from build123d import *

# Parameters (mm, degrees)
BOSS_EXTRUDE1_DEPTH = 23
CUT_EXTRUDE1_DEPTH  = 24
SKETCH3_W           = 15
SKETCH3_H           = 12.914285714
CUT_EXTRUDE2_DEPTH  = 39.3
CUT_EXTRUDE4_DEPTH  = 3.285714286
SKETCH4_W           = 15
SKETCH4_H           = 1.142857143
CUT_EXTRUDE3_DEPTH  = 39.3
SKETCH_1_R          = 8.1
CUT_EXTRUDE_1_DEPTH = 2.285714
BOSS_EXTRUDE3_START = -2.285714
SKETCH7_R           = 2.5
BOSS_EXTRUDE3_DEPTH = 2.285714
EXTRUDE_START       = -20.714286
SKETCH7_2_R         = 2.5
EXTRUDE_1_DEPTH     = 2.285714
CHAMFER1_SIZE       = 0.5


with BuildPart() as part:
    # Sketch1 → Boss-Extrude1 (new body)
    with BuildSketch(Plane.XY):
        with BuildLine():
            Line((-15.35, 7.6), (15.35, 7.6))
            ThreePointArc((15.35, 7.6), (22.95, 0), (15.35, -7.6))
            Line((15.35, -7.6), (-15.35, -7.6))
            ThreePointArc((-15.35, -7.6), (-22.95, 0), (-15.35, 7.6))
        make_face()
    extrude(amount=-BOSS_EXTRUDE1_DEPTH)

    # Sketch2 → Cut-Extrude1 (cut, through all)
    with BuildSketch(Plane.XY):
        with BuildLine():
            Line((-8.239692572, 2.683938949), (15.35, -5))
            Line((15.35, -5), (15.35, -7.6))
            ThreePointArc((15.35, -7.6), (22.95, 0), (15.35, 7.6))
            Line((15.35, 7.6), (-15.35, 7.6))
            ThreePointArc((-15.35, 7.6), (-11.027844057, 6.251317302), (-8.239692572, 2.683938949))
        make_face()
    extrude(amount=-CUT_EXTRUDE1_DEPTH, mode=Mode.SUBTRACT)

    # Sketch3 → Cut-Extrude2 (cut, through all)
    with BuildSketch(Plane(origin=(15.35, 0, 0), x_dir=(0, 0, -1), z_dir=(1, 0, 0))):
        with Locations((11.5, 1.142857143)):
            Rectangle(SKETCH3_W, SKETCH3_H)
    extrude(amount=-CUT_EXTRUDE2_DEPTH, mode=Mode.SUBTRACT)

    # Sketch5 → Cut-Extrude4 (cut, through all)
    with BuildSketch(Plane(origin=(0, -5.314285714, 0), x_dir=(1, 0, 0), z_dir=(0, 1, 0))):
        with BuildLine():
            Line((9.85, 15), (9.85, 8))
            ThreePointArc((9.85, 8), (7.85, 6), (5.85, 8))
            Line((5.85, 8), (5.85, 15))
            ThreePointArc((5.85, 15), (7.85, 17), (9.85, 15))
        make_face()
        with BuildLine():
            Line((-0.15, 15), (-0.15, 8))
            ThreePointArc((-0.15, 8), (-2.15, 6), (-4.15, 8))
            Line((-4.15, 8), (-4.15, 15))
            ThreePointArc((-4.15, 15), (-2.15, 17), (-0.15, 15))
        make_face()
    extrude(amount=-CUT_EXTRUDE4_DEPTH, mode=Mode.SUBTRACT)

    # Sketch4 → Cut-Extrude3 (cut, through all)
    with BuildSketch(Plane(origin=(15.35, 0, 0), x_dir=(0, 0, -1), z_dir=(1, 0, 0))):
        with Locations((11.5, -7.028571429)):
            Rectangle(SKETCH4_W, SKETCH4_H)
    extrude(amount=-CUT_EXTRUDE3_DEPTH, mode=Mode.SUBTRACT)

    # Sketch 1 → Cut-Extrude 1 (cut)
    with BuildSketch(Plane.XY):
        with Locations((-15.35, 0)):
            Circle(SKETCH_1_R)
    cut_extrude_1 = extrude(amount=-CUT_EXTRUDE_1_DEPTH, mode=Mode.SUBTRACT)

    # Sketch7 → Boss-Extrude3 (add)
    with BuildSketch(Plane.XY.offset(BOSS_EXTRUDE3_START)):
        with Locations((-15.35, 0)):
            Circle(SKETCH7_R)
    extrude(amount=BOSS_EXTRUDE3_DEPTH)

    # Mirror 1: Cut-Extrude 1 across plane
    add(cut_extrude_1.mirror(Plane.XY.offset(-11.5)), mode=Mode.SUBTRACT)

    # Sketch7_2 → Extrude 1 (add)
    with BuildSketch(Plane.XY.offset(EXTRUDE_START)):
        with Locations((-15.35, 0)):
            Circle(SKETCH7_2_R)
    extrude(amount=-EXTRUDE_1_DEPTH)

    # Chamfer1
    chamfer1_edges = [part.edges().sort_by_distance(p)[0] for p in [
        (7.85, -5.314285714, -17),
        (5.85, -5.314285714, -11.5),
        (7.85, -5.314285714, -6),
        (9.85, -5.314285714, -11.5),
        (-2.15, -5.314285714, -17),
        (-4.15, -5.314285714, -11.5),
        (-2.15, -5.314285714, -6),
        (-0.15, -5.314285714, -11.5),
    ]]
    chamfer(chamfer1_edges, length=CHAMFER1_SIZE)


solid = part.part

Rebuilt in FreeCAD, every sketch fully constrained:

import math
import FreeCAD as App
import Part
import Sketcher


def edges_at(feature, points):
    """Names of the edges that pass closest to the given points."""
    edges = feature.Shape.Edges
    near = lambda p: min(range(len(edges)), key=lambda i: edges[i].distToShape(Part.Vertex(*p))[0])
    return sorted({f"Edge{near(p) + 1}" for p in points})


def add_polygon(sketch, points):
    """Adds a closed chain of lines whose ends are joined by coincident constraints."""
    first, n = sketch.GeometryCount, len(points)
    for a, b in zip(points, points[1:] + points[:1]):
        sketch.addGeometry(Part.LineSegment(App.Vector(*a, 0), App.Vector(*b, 0)), False)
    for i in range(n):
        sketch.addConstraint(Sketcher.Constraint("Coincident", first + i, 2, first + (i + 1) % n, 1))

doc = App.newDocument("Part")
body = doc.addObject("PartDesign::Body", "Body")

# Sketch on XY plane
sketch1 = body.newObject("Sketcher::SketchObject", "Sketch")
sketch1.AttachmentSupport = (doc.getObject("XY_Plane"), [""])
sketch1.MapMode = "FlatFace"
sketch1.addGeometry(Part.LineSegment(App.Vector(15, 8, 0), App.Vector(-15, 8, 0)), False)
sketch1.addGeometry(Part.ArcOfCircle(Part.Circle(App.Vector(-15, 0, 0), App.Vector(0, 0, 1), 8), math.radians(90), math.radians(270)), False)
sketch1.addGeometry(Part.LineSegment(App.Vector(-15, -8, 0), App.Vector(15, -8, 0)), False)
sketch1.addGeometry(Part.ArcOfCircle(Part.Circle(App.Vector(15, 0, 0), App.Vector(0, 0, 1), 8), math.radians(-90), math.radians(90)), False)
sketch1.addConstraint(Sketcher.Constraint("Tangent", 0, 2, 1, 1))
sketch1.addConstraint(Sketcher.Constraint("Tangent", 1, 2, 2, 1))
sketch1.addConstraint(Sketcher.Constraint("Tangent", 2, 2, 3, 1))
sketch1.addConstraint(Sketcher.Constraint("Tangent", 3, 2, 0, 1))
sketch1.addConstraint(Sketcher.Constraint("Horizontal", 0))
sketch1.addConstraint(Sketcher.Constraint("Horizontal", 2))
sketch1.addConstraint(Sketcher.Constraint("Symmetric", 1, 3, 3, 3, -1, 1))
sketch1.addConstraint(Sketcher.Constraint("Radius", 1, 7.6))
sketch1.addConstraint(Sketcher.Constraint("DistanceX", 0, 2, 0, 1, 30.7))
pad1 = body.newObject("PartDesign::Pad", "Pad")
pad1.Profile = sketch1
pad1.Length = 23
pad1.Reversed = True

# Sketch on XY plane
sketch2 = body.newObject("Sketcher::SketchObject", "Sketch001")
sketch2.AttachmentSupport = (doc.getObject("XY_Plane"), [""])
sketch2.MapMode = "FlatFace"
sketch2.addGeometry(Part.LineSegment(App.Vector(-8.2, 2.7, 0), App.Vector(15.3, -5, 0)), False)
sketch2.addGeometry(Part.LineSegment(App.Vector(15.3, -5, 0), App.Vector(15.3, -7.6, 0)), False)
sketch2.addGeometry(Part.ArcOfCircle(Part.Circle(App.Vector(15.3, 0, 0), App.Vector(0, 0, 1), 7.6), math.radians(-90), math.radians(90)), False)
sketch2.addGeometry(Part.LineSegment(App.Vector(15.3, 7.6, 0), App.Vector(-15.3, 7.6, 0)), False)
sketch2.addGeometry(Part.ArcOfCircle(Part.Circle(App.Vector(-15.3, 0, 0), App.Vector(0, 0, 1), 7.6), math.radians(21), math.radians(90)), False)
sketch2.addConstraint(Sketcher.Constraint("Coincident", 0, 2, 1, 1))
sketch2.addConstraint(Sketcher.Constraint("Coincident", 1, 2, 2, 1))
sketch2.addConstraint(Sketcher.Constraint("Tangent", 2, 2, 3, 1))
sketch2.addConstraint(Sketcher.Constraint("Tangent", 3, 2, 4, 2))
sketch2.addConstraint(Sketcher.Constraint("Coincident", 4, 1, 0, 1))
sketch2.addConstraint(Sketcher.Constraint("Vertical", 1))
sketch2.addConstraint(Sketcher.Constraint("Horizontal", 3))
sketch2.addConstraint(Sketcher.Constraint("Equal", 2, 4))
sketch2.addConstraint(Sketcher.Constraint("Symmetric", 2, 3, 4, 3, -1, 1))
sketch2.addConstraint(Sketcher.Constraint("Vertical", 2, 3, 0, 2))
sketch2.addConstraint(Sketcher.Constraint("Radius", 2, 7.6))
sketch2.addConstraint(Sketcher.Constraint("DistanceX", 3, 2, 3, 1, 30.7))
sketch2.addConstraint(Sketcher.Constraint("DistanceY", 1, 2, 1, 1, 2.6))
sketch2.addConstraint(Sketcher.Constraint("DistanceY", -1, 1, 4, 1, 2.683939))
pocket1 = body.newObject("PartDesign::Pocket", "Pocket")
pocket1.Profile = sketch2
pocket1.Type = "ThroughAll"

# Sketch on YZ plane
sketch3 = body.newObject("Sketcher::SketchObject", "Sketch002")
sketch3.AttachmentSupport = (doc.getObject("YZ_Plane"), [""])
sketch3.MapMode = "FlatFace"
sketch3.AttachmentOffset = App.Placement(App.Vector(0, 0, 15.35), App.Rotation())
add_polygon(sketch3, [(8, -4), (-5, -4), (-5, -19), (8, -19)])  # lines 0-3
sketch3.addConstraint(Sketcher.Constraint("Horizontal", 0))
sketch3.addConstraint(Sketcher.Constraint("Vertical", 1))
sketch3.addConstraint(Sketcher.Constraint("Horizontal", 2))
sketch3.addConstraint(Sketcher.Constraint("Vertical", 3))
sketch3.addConstraint(Sketcher.Constraint("DistanceY", 1, 2, 1, 1, 15.0))
sketch3.addConstraint(Sketcher.Constraint("DistanceY", 0, 2, -1, 1, 4.0))
sketch3.addConstraint(Sketcher.Constraint("DistanceX", -1, 1, 2, 2, 7.6))
sketch3.addConstraint(Sketcher.Constraint("DistanceX", 0, 2, 0, 1, 12.914286))
pocket2 = body.newObject("PartDesign::Pocket", "Pocket001")
pocket2.Profile = sketch3
pocket2.Type = "ThroughAll"

# Sketch on XZ plane
sketch4 = body.newObject("Sketcher::SketchObject", "Sketch003")
sketch4.AttachmentSupport = (doc.getObject("XZ_Plane"), [""])
sketch4.MapMode = "FlatFace"
sketch4.AttachmentOffset = App.Placement(App.Vector(0, 0, 5.314286), App.Rotation())
sketch4.addGeometry(Part.LineSegment(App.Vector(9.8, -8, 0), App.Vector(9.8, -15, 0)), False)
sketch4.addGeometry(Part.ArcOfCircle(Part.Circle(App.Vector(7.8, -15, 0), App.Vector(0, 0, 1), 2), math.radians(180), math.radians(360)), False)
sketch4.addGeometry(Part.LineSegment(App.Vector(5.8, -15, 0), App.Vector(5.8, -8, 0)), False)
sketch4.addGeometry(Part.ArcOfCircle(Part.Circle(App.Vector(7.8, -8, 0), App.Vector(0, 0, 1), 2), math.radians(0), math.radians(180)), False)
sketch4.addGeometry(Part.LineSegment(App.Vector(-0.1, -8, 0), App.Vector(-0.1, -15, 0)), False)
sketch4.addGeometry(Part.ArcOfCircle(Part.Circle(App.Vector(-2.1, -15, 0), App.Vector(0, 0, 1), 2), math.radians(180), math.radians(360)), False)
sketch4.addGeometry(Part.LineSegment(App.Vector(-4.2, -15, 0), App.Vector(-4.2, -8, 0)), False)
sketch4.addGeometry(Part.ArcOfCircle(Part.Circle(App.Vector(-2.1, -8, 0), App.Vector(0, 0, 1), 2), math.radians(0), math.radians(180)), False)
sketch4.addConstraint(Sketcher.Constraint("Tangent", 0, 2, 1, 2))
sketch4.addConstraint(Sketcher.Constraint("Tangent", 1, 1, 2, 1))
sketch4.addConstraint(Sketcher.Constraint("Tangent", 2, 2, 3, 2))
sketch4.addConstraint(Sketcher.Constraint("Tangent", 3, 1, 0, 1))
sketch4.addConstraint(Sketcher.Constraint("Tangent", 4, 2, 5, 2))
sketch4.addConstraint(Sketcher.Constraint("Tangent", 5, 1, 6, 1))
sketch4.addConstraint(Sketcher.Constraint("Tangent", 6, 2, 7, 2))
sketch4.addConstraint(Sketcher.Constraint("Tangent", 7, 1, 4, 1))
sketch4.addConstraint(Sketcher.Constraint("Vertical", 0))
sketch4.addConstraint(Sketcher.Constraint("Vertical", 2))
sketch4.addConstraint(Sketcher.Constraint("Vertical", 4))
sketch4.addConstraint(Sketcher.Constraint("Vertical", 6))
sketch4.addConstraint(Sketcher.Constraint("Equal", 3, 5))
sketch4.addConstraint(Sketcher.Constraint("Horizontal", 1, 3, 5, 3))
sketch4.addConstraint(Sketcher.Constraint("Horizontal", 3, 3, 7, 3))
sketch4.addConstraint(Sketcher.Constraint("Radius", 1, 2.0))
sketch4.addConstraint(Sketcher.Constraint("DistanceY", 0, 2, 0, 1, 7.0))
sketch4.addConstraint(Sketcher.Constraint("DistanceY", 1, 3, -1, 1, 15.0))
sketch4.addConstraint(Sketcher.Constraint("DistanceX", 5, 3, 1, 3, 10.0))
sketch4.addConstraint(Sketcher.Constraint("DistanceX", -1, 1, 1, 3, 7.85))
pocket3 = body.newObject("PartDesign::Pocket", "Pocket002")
pocket3.Profile = sketch4
pocket3.Type = "ThroughAll"
pocket3.Reversed = True

# Sketch on YZ plane
sketch5 = body.newObject("Sketcher::SketchObject", "Sketch004")
sketch5.AttachmentSupport = (doc.getObject("YZ_Plane"), [""])
sketch5.MapMode = "FlatFace"
sketch5.AttachmentOffset = App.Placement(App.Vector(0, 0, 15.35), App.Rotation())
add_polygon(sketch5, [(-6.5, -4), (-7.6, -4), (-7.6, -19), (-6.5, -19)])  # lines 0-3
sketch5.addConstraint(Sketcher.Constraint("Horizontal", 0))
sketch5.addConstraint(Sketcher.Constraint("Vertical", 1))
sketch5.addConstraint(Sketcher.Constraint("Horizontal", 2))
sketch5.addConstraint(Sketcher.Constraint("Vertical", 3))
sketch5.addConstraint(Sketcher.Constraint("DistanceY", 1, 2, 1, 1, 15.0))
sketch5.addConstraint(Sketcher.Constraint("DistanceY", 0, 2, -1, 1, 4.0))
sketch5.addConstraint(Sketcher.Constraint("DistanceX", 0, 2, -1, 1, 7.6))
sketch5.addConstraint(Sketcher.Constraint("DistanceX", 0, 2, 0, 1, 1.142857))
pocket4 = body.newObject("PartDesign::Pocket", "Pocket003")
pocket4.Profile = sketch5
pocket4.Type = "ThroughAll"

# Sketch on XY plane
sketch6 = body.newObject("Sketcher::SketchObject", "Sketch005")
sketch6.AttachmentSupport = (doc.getObject("XY_Plane"), [""])
sketch6.MapMode = "FlatFace"
sketch6.addGeometry(Part.Circle(App.Vector(-15, 0, 0), App.Vector(0, 0, 1), 8), False)
sketch6.addConstraint(Sketcher.Constraint("PointOnObject", 0, 3, -1))
sketch6.addConstraint(Sketcher.Constraint("Diameter", 0, 16.2))
sketch6.addConstraint(Sketcher.Constraint("DistanceX", 0, 3, -1, 1, 15.35))
pocket5 = body.newObject("PartDesign::Pocket", "Pocket004")
pocket5.Profile = sketch6
pocket5.Length = 2.285714

# Sketch on XY plane
sketch7 = body.newObject("Sketcher::SketchObject", "Sketch006")
sketch7.AttachmentSupport = (doc.getObject("XY_Plane"), [""])
sketch7.MapMode = "FlatFace"
sketch7.AttachmentOffset = App.Placement(App.Vector(0, 0, -2.285714), App.Rotation())
sketch7.addGeometry(Part.Circle(App.Vector(-15.3, 0, 0), App.Vector(0, 0, 1), 2.5), False)
sketch7.addConstraint(Sketcher.Constraint("PointOnObject", 0, 3, -1))
sketch7.addConstraint(Sketcher.Constraint("Diameter", 0, 5.0))
sketch7.addConstraint(Sketcher.Constraint("DistanceX", 0, 3, -1, 1, 15.35))
pad2 = body.newObject("PartDesign::Pad", "Pad001")
pad2.Profile = sketch7
pad2.Length = 2.285714
doc.recompute()

datumplane = body.newObject("PartDesign::Plane", "DatumPlane")
datumplane.AttachmentSupport = (doc.getObject("XY_Plane"), [""])
datumplane.MapMode = "FlatFace"
datumplane.AttachmentOffset = App.Placement(App.Vector(0, 0, -11.5), App.Rotation())
mirrored = body.newObject("PartDesign::Mirrored", "Mirrored")
mirrored.Originals = [pocket5]
mirrored.MirrorPlane = (datumplane, [""])
body.Tip = mirrored

# Sketch on XY plane
sketch8 = body.newObject("Sketcher::SketchObject", "Sketch007")
sketch8.AttachmentSupport = (doc.getObject("XY_Plane"), [""])
sketch8.MapMode = "FlatFace"
sketch8.AttachmentOffset = App.Placement(App.Vector(0, 0, -20.714286), App.Rotation())
sketch8.addGeometry(Part.Circle(App.Vector(-15.3, 0, 0), App.Vector(0, 0, 1), 2.5), False)
sketch8.addConstraint(Sketcher.Constraint("PointOnObject", 0, 3, -1))
sketch8.addConstraint(Sketcher.Constraint("Diameter", 0, 5.0))
sketch8.addConstraint(Sketcher.Constraint("DistanceX", 0, 3, -1, 1, 15.35))
pad3 = body.newObject("PartDesign::Pad", "Pad002")
pad3.Profile = sketch8
pad3.Length = 2.285714
pad3.Reversed = True
doc.recompute()

chamfer = body.newObject("PartDesign::Chamfer", "Chamfer")
chamfer.Base = (pad3, edges_at(pad3, [
    (7.85, -5.314, -17),
    (5.85, -5.314, -11.5),
    (7.85, -5.314, -6),
    (9.85, -5.314, -11.5),
    (-2.15, -5.314, -17),
    (-4.15, -5.314, -11.5),
    (-2.15, -5.314, -6),
    (-0.15, -5.314, -11.5),
]))
chamfer.Size = 0.5

doc.recompute()
